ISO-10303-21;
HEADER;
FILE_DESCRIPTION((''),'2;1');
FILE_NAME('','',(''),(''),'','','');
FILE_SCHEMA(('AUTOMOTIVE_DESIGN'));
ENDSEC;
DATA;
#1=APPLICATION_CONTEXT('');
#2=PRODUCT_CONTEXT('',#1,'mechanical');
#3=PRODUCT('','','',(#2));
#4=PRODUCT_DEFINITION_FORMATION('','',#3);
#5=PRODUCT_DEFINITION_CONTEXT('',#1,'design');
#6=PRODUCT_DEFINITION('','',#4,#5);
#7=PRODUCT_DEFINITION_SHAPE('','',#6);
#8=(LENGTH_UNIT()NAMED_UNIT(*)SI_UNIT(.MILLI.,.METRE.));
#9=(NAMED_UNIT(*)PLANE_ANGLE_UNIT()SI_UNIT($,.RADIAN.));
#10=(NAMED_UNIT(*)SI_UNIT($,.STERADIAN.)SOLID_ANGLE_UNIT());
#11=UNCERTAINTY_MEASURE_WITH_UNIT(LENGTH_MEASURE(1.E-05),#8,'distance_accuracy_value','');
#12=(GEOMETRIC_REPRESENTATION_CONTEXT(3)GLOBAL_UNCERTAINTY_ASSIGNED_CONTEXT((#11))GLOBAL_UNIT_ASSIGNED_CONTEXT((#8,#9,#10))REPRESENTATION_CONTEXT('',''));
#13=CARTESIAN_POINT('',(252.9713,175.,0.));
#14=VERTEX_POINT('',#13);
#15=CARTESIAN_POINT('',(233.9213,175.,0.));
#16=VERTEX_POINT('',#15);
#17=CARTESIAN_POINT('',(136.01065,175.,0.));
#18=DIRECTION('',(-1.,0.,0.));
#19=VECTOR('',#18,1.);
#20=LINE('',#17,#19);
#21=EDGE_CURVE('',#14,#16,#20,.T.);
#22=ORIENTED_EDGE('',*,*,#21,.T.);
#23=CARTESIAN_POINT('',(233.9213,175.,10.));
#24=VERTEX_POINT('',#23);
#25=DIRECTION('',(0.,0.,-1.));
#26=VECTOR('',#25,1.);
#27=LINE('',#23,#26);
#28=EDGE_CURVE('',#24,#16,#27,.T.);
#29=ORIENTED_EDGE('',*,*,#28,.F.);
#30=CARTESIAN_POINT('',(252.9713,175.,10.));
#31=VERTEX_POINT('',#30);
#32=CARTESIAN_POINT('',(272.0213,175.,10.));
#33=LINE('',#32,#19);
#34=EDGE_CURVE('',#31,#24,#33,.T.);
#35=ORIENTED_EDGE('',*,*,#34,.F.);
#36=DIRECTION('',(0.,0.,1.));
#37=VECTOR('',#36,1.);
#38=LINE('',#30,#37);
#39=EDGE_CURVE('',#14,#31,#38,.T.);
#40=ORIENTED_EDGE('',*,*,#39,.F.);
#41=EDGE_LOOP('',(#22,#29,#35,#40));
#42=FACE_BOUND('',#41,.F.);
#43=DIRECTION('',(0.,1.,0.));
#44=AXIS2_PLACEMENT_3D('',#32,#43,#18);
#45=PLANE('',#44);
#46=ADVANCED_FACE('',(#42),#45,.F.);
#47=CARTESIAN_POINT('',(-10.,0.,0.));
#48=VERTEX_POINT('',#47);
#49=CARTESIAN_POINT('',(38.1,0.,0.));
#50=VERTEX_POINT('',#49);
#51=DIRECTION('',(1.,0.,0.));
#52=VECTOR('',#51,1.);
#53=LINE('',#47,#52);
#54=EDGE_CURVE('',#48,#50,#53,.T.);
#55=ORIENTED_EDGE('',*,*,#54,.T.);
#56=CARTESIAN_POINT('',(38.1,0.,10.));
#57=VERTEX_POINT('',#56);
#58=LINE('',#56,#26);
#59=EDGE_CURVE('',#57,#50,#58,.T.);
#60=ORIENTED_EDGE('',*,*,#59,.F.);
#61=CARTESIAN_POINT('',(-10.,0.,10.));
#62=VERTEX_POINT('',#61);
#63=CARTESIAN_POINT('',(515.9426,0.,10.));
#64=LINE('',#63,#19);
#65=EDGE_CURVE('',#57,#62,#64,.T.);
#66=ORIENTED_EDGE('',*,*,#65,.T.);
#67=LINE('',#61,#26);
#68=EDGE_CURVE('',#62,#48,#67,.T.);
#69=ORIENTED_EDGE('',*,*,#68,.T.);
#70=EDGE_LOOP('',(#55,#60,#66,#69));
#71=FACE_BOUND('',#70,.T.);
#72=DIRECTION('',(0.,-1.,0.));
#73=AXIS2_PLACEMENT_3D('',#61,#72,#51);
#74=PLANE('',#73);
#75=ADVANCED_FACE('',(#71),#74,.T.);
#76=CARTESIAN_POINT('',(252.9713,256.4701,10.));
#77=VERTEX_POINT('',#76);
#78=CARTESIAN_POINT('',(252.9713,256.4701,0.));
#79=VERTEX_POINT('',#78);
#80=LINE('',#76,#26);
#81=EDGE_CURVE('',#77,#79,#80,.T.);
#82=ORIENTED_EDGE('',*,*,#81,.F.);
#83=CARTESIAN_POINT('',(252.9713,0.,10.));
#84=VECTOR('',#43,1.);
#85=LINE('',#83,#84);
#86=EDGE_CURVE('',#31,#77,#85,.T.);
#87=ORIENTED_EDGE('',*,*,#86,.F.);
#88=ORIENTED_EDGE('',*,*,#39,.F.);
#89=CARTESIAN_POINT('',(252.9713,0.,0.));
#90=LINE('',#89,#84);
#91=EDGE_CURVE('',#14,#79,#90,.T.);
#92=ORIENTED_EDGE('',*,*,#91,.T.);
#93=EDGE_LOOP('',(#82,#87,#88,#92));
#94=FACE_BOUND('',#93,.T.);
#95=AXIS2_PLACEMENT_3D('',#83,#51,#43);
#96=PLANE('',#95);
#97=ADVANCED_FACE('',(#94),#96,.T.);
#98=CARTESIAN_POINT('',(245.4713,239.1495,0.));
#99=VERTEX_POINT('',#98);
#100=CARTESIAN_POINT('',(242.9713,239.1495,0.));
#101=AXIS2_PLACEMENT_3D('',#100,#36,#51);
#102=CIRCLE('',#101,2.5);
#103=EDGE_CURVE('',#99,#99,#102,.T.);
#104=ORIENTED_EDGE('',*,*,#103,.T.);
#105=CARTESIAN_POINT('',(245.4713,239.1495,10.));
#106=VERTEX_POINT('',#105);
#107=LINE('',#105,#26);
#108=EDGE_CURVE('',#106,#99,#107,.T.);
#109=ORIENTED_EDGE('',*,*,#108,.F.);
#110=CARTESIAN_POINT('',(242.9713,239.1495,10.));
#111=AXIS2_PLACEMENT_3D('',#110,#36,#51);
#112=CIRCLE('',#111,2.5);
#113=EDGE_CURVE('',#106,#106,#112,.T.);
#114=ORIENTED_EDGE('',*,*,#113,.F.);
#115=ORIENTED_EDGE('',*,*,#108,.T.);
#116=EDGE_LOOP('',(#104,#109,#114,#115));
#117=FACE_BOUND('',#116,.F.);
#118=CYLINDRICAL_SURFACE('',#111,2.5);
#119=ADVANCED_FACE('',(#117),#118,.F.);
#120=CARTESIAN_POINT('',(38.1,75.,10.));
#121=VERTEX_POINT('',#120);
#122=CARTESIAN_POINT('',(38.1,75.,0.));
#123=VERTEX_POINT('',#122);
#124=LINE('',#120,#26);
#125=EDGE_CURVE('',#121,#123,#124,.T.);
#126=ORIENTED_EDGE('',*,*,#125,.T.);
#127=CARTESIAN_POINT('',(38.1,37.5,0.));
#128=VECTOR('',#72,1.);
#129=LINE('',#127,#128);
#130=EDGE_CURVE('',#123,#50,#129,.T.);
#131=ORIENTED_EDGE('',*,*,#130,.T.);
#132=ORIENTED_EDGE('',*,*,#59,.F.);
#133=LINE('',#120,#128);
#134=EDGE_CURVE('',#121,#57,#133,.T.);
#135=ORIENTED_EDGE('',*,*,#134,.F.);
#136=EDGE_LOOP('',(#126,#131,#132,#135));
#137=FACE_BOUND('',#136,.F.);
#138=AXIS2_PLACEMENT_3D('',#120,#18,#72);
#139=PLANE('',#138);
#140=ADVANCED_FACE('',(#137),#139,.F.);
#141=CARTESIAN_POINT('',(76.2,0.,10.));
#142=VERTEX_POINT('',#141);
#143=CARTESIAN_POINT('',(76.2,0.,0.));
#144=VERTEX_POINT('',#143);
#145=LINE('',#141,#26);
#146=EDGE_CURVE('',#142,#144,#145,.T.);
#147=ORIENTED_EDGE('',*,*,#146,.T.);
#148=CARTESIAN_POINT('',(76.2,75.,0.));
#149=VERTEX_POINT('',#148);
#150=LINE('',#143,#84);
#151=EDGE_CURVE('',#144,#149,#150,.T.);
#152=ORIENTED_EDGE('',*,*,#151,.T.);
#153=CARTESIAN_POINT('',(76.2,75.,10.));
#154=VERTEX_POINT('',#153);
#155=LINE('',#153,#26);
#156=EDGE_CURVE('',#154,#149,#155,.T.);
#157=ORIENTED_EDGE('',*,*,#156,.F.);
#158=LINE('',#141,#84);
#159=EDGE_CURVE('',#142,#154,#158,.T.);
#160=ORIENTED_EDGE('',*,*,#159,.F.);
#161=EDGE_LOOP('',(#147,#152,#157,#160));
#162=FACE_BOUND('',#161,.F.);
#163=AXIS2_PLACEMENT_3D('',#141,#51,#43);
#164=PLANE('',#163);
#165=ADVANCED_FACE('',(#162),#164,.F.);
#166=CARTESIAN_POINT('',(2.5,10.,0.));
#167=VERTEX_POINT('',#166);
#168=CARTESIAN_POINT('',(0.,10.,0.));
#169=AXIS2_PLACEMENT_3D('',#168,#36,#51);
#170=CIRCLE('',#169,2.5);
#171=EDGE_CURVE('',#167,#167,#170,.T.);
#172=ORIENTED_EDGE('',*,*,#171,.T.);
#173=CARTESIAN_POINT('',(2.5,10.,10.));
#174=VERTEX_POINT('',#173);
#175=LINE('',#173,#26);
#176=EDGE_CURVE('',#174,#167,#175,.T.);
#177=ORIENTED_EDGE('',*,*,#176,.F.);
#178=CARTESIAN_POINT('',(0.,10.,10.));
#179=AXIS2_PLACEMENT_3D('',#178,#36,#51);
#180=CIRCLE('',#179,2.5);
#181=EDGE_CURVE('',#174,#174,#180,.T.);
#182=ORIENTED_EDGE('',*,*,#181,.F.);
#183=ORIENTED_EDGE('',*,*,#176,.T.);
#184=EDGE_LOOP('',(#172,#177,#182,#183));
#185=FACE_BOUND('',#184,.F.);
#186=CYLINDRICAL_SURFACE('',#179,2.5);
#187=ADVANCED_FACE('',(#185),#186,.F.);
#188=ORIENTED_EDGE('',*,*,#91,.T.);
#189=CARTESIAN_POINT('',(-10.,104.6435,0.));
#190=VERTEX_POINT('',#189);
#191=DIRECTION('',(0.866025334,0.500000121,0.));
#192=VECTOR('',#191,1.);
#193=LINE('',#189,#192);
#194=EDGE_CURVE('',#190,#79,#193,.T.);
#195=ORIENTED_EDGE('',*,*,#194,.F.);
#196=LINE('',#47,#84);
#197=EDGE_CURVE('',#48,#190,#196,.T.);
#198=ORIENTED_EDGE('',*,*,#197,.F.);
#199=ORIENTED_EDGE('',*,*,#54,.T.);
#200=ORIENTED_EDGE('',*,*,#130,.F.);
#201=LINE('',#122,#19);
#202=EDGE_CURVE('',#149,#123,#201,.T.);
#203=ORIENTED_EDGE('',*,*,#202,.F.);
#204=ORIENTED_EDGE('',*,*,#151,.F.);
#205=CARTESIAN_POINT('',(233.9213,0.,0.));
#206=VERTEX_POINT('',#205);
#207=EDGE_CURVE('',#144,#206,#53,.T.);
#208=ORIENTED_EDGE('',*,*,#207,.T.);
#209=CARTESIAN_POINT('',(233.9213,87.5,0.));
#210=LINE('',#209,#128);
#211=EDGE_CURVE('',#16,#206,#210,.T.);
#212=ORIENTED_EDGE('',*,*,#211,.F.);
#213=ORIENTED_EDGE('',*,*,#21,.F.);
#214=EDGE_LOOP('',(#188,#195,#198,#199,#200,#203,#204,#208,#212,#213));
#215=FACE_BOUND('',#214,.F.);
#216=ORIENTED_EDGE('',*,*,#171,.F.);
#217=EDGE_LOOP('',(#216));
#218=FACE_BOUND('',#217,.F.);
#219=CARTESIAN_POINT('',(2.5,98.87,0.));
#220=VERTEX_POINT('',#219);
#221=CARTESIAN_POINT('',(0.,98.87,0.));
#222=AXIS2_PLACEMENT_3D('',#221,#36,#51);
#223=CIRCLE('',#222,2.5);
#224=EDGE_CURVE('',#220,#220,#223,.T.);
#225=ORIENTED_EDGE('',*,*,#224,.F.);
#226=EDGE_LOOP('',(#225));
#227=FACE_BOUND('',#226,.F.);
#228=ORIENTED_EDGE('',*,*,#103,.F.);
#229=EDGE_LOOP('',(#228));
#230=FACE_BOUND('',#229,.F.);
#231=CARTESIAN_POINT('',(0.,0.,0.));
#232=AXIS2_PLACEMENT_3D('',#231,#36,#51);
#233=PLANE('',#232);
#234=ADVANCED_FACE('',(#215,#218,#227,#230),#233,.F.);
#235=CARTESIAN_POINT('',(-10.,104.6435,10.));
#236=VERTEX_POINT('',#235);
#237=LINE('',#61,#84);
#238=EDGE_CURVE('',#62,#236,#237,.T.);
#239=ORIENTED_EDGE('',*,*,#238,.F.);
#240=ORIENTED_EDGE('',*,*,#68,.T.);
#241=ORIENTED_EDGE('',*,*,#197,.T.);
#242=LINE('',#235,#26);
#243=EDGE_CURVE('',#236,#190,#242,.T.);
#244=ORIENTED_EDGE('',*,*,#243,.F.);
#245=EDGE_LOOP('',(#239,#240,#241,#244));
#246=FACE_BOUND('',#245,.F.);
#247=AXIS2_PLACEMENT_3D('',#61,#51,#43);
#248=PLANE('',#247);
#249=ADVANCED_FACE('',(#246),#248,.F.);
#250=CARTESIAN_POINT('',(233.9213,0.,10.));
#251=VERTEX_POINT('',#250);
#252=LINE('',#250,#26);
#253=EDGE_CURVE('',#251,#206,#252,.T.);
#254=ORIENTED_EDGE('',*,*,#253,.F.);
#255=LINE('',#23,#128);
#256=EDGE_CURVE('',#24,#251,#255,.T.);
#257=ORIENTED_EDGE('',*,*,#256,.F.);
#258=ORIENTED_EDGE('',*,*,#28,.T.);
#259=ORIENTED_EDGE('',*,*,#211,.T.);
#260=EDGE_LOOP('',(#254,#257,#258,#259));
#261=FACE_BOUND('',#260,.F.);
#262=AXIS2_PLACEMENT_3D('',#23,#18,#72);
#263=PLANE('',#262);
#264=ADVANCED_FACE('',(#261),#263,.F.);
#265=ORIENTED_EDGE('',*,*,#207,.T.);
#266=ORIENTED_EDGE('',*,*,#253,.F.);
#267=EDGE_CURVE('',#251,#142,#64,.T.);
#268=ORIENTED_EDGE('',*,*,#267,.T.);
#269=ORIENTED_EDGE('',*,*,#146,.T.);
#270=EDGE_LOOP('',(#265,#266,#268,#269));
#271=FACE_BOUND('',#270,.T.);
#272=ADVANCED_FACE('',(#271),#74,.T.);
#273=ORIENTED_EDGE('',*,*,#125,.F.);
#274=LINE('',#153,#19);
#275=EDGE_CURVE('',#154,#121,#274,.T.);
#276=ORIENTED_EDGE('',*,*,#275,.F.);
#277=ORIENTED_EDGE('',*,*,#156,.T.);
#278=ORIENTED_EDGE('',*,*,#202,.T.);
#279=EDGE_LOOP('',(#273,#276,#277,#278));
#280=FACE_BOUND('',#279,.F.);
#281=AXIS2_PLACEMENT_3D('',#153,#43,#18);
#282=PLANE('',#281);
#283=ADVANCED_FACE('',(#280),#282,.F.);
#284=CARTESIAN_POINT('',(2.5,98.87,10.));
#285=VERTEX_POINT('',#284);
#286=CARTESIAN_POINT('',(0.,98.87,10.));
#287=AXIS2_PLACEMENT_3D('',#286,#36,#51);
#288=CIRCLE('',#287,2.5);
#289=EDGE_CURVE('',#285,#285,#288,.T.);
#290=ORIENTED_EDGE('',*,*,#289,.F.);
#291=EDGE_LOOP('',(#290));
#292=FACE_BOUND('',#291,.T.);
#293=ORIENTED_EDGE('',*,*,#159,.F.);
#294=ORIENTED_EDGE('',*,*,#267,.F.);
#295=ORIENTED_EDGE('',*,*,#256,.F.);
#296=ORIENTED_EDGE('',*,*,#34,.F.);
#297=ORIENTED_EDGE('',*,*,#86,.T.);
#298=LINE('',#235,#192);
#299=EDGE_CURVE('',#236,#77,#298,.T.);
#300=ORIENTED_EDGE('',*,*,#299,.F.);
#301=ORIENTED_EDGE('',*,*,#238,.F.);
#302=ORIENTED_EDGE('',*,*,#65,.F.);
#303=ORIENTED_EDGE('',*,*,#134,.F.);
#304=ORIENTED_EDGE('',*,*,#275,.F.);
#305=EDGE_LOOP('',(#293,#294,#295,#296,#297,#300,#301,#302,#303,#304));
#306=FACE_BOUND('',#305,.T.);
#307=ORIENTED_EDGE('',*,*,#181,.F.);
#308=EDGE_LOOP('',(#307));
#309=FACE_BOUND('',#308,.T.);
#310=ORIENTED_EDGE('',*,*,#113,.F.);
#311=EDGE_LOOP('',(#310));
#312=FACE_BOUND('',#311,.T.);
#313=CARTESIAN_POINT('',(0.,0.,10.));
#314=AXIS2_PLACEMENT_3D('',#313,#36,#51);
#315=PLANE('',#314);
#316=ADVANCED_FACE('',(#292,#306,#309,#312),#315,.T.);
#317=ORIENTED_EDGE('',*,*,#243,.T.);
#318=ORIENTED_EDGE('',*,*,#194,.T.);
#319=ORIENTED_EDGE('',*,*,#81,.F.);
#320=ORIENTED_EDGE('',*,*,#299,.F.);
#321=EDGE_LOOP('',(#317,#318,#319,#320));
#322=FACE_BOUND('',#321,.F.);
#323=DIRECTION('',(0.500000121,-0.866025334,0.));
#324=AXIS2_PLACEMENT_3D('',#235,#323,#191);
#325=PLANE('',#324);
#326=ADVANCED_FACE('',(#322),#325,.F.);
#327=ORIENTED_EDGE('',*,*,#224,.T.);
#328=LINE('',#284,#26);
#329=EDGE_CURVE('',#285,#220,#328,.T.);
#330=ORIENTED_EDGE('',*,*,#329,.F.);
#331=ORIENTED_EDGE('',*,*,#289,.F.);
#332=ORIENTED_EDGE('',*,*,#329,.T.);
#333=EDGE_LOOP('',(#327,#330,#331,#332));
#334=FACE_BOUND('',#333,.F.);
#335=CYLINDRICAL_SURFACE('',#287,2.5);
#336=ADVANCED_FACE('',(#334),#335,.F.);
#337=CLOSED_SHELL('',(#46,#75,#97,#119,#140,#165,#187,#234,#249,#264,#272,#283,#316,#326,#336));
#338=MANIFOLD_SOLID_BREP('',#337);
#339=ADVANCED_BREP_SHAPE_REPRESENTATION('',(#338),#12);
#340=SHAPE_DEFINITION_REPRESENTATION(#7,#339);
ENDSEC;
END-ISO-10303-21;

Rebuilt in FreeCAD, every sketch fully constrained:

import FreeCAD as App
import Part
import Sketcher
from FreeCAD import Vector
Q = App.Units.Quantity

doc = App.newDocument("Part")
body = doc.addObject("PartDesign::Body", "Body")

sketch1 = body.newObject("Sketcher::SketchObject", "Sketch")
sketch1.AttachmentSupport = (doc.getObject("XY_Plane"), [""])
sketch1.MapMode = "FlatFace"
sketch1.addGeometry([
    Part.LineSegment(Vector(0, 99, 0), Vector(0, 0, 0)),
    Part.LineSegment(Vector(0, 0, 0), Vector(506, 0, 0)),
    Part.LineSegment(Vector(506, 0, 0), Vector(506, 99, 0)),
    Part.LineSegment(Vector(506, 99, 0), Vector(253, 245, 0)),
    Part.LineSegment(Vector(253, 245, 0), Vector(0, 99, 0)),
], False)
sketch1.addConstraint([
    Sketcher.Constraint("Coincident", 0, 2, 1, 1),
    Sketcher.Constraint("Coincident", 1, 2, 2, 1),
    Sketcher.Constraint("Coincident", 2, 2, 3, 1),
    Sketcher.Constraint("Coincident", 3, 2, 4, 1),
    Sketcher.Constraint("Coincident", 4, 2, 0, 1),
    Sketcher.Constraint("Vertical", 0),
    Sketcher.Constraint("Horizontal", 1),
    Sketcher.Constraint("Vertical", 2),
    Sketcher.Constraint("Coincident", 0, 2, -1, 1),
    Sketcher.Constraint("Horizontal", 2, 2, 4, 2),
    Sketcher.Constraint("Equal", 3, 4),
    Sketcher.Constraint("DistanceY", 0, 2, 0, 1, Q("98.87 mm")),
    Sketcher.Constraint("Angle", 3, Q("150 deg")),
    Sketcher.Constraint("DistanceX", 1, 1, 1, 2, Q("505.9426 mm")),
])
pad1 = body.newObject("PartDesign::Pad", "Pad")
pad1.Profile = sketch1
pad1.Length = 10

sketch2 = body.newObject("Sketcher::SketchObject", "Sketch001")
sketch2.AttachmentSupport = (doc.getObject("XY_Plane"), [""])
sketch2.MapMode = "FlatFace"
sketch2.AttachmentOffset = App.Placement(Vector(0, 0, 10), App.Rotation())
sketch2.addGeometry([
    Part.LineSegment(Vector(0, 0, 0), Vector(0, 99, 0)),
    Part.LineSegment(Vector(0, 99, 0), Vector(253, 245, 0)),
    Part.LineSegment(Vector(253, 245, 0), Vector(506, 99, 0)),
    Part.LineSegment(Vector(506, 99, 0), Vector(506, 0, 0)),
    Part.LineSegment(Vector(506, 0, 0), Vector(516, 0, 0)),
    Part.LineSegment(Vector(516, 0, 0), Vector(516, 105, 0)),
    Part.LineSegment(Vector(516, 105, 0), Vector(253, 256, 0)),
    Part.LineSegment(Vector(253, 256, 0), Vector(-10, 105, 0)),
    Part.LineSegment(Vector(-10, 105, 0), Vector(-10, 0, 0)),
    Part.LineSegment(Vector(-10, 0, 0), Vector(0, 0, 0)),
], False)
sketch2.addConstraint([
    Sketcher.Constraint("Coincident", 0, 2, 1, 1),
    Sketcher.Constraint("Coincident", 1, 2, 2, 1),
    Sketcher.Constraint("Coincident", 2, 2, 3, 1),
    Sketcher.Constraint("Coincident", 3, 2, 4, 1),
    Sketcher.Constraint("Coincident", 4, 2, 5, 1),
    Sketcher.Constraint("Coincident", 5, 2, 6, 1),
    Sketcher.Constraint("Coincident", 6, 2, 7, 1),
    Sketcher.Constraint("Coincident", 7, 2, 8, 1),
    Sketcher.Constraint("Coincident", 8, 2, 9, 1),
    Sketcher.Constraint("Coincident", 9, 2, 0, 1),
    Sketcher.Constraint("Vertical", 0),
    Sketcher.Constraint("Vertical", 3),
    Sketcher.Constraint("Horizontal", 4),
    Sketcher.Constraint("Vertical", 5),
    Sketcher.Constraint("Vertical", 8),
    Sketcher.Constraint("Horizontal", 9),
    Sketcher.Constraint("Coincident", 9, 2, -1, 1),
    Sketcher.Constraint("PointOnObject", 3, 2, -1),
    Sketcher.Constraint("Parallel", 2, 6),
    Sketcher.Constraint("Parallel", 1, 7),
    Sketcher.Constraint("Horizontal", 0, 2, 2, 2),
    Sketcher.Constraint("Horizontal", 5, 2, 7, 2),
    Sketcher.Constraint("Vertical", 1, 2, 6, 2),
    Sketcher.Constraint("Equal", 4, 9),
    Sketcher.Constraint("DistanceX", 4, 1, 4, 2, Q("10 mm")),
    Sketcher.Constraint("Angle", 1, Q("30 deg")),
    Sketcher.Constraint("DistanceY", 0, 1, 0, 2, Q("98.87 mm")),
    Sketcher.Constraint("DistanceY", 0, 2, 6, 2, Q("157.6 mm")),
    Sketcher.Constraint("Distance", 1, Q("292.106 mm")),
])
pad2 = body.newObject("PartDesign::Pad", "Pad001")
pad2.Profile = sketch2
pad2.Length = 10
pad2.Reversed = True

sketch3 = body.newObject("Sketcher::SketchObject", "Sketch002")
sketch3.AttachmentSupport = (doc.getObject("XY_Plane"), [""])
sketch3.MapMode = "FlatFace"
sketch3.AttachmentOffset = App.Placement(Vector(0, 0, 10), App.Rotation())
sketch3.addGeometry([
    Part.LineSegment(Vector(516, 256, 0), Vector(253, 256, 0)),
    Part.LineSegment(Vector(253, 256, 0), Vector(253, 0, 0)),
    Part.LineSegment(Vector(253, 0, 0), Vector(516, 0, 0)),
    Part.LineSegment(Vector(516, 0, 0), Vector(516, 256, 0)),
], False)
sketch3.addConstraint([
    Sketcher.Constraint("Coincident", 0, 2, 1, 1),
    Sketcher.Constraint("Coincident", 1, 2, 2, 1),
    Sketcher.Constraint("Coincident", 2, 2, 3, 1),
    Sketcher.Constraint("Coincident", 3, 2, 0, 1),
    Sketcher.Constraint("Horizontal", 0),
    Sketcher.Constraint("Vertical", 1),
    Sketcher.Constraint("Horizontal", 2),
    Sketcher.Constraint("Vertical", 3),
    Sketcher.Constraint("PointOnObject", 1, 2, -1),
    Sketcher.Constraint("DistanceY", 1, 2, 1, 1, Q("256.47 mm")),
    Sketcher.Constraint("DistanceX", 0, 2, 0, 1, Q("262.9713 mm")),
    Sketcher.Constraint("DistanceX", -1, 1, 0, 2, Q("252.9713 mm")),
])
pocket1 = body.newObject("PartDesign::Pocket", "Pocket")
pocket1.Profile = sketch3
pocket1.Type = "ThroughAll"

sketch4 = body.newObject("Sketcher::SketchObject", "Sketch003")
sketch4.AttachmentSupport = (doc.getObject("XY_Plane"), [""])
sketch4.MapMode = "FlatFace"
sketch4.AttachmentOffset = App.Placement(Vector(0, 0, 10), App.Rotation())
sketch4.addGeometry([
    Part.Circle(Vector(0, 10, 0), Vector(0, 0, 1), 2.5),
    Part.Circle(Vector(0, 98.9, 0), Vector(0, 0, 1), 2.5),
    Part.Circle(Vector(243, 239.1, 0), Vector(0, 0, 1), 2.5),
    Part.Circle(Vector(243, 10, 0), Vector(0, 0, 1), 2.5),
], False)
sketch4.addConstraint([
    Sketcher.Constraint("Equal", 0, 1),
    Sketcher.Constraint("Equal", 1, 2),
    Sketcher.Constraint("Equal", 2, 3),
    Sketcher.Constraint("PointOnObject", 0, 3, -2),
    Sketcher.Constraint("PointOnObject", 1, 3, -2),
    Sketcher.Constraint("Horizontal", 0, 3, 3, 3),
    Sketcher.Constraint("Vertical", 2, 3, 3, 3),
    Sketcher.Constraint("Diameter", 0, Q("5 mm")),
    Sketcher.Constraint("DistanceY", -1, 1, 0, 3, Q("10 mm")),
    Sketcher.Constraint("DistanceY", -1, 1, 1, 3, Q("98.87 mm")),
    Sketcher.Constraint("DistanceX", -1, 1, 2, 3, Q("242.9713 mm")),
    Sketcher.Constraint("DistanceY", -1, 1, 2, 3, Q("239.1495 mm")),
])
pocket2 = body.newObject("PartDesign::Pocket", "Pocket001")
pocket2.Profile = sketch4
pocket2.Type = "ThroughAll"

sketch5 = body.newObject("Sketcher::SketchObject", "Sketch004")
sketch5.AttachmentSupport = (doc.getObject("XY_Plane"), [""])
sketch5.MapMode = "FlatFace"
sketch5.AttachmentOffset = App.Placement(Vector(0, 0, 10), App.Rotation())
sketch5.addGeometry([
    Part.LineSegment(Vector(272, 0, 0), Vector(272, 175, 0)),
    Part.LineSegment(Vector(272, 175, 0), Vector(234, 175, 0)),
    Part.LineSegment(Vector(234, 175, 0), Vector(234, 0, 0)),
    Part.LineSegment(Vector(234, 0, 0), Vector(272, 0, 0)),
    Part.LineSegment(Vector(38, 0, 0), Vector(76, 0, 0)),
    Part.LineSegment(Vector(76, 0, 0), Vector(76, 75, 0)),
    Part.LineSegment(Vector(76, 75, 0), Vector(38, 75, 0)),
    Part.LineSegment(Vector(38, 75, 0), Vector(38, 0, 0)),
], False)
sketch5.addConstraint([
    Sketcher.Constraint("Coincident", 0, 2, 1, 1),
    Sketcher.Constraint("Coincident", 1, 2, 2, 1),
    Sketcher.Constraint("Coincident", 2, 2, 3, 1),
    Sketcher.Constraint("Coincident", 3, 2, 0, 1),
    Sketcher.Constraint("Coincident", 4, 2, 5, 1),
    Sketcher.Constraint("Coincident", 5, 2, 6, 1),
    Sketcher.Constraint("Coincident", 6, 2, 7, 1),
    Sketcher.Constraint("Coincident", 7, 2, 4, 1),
    Sketcher.Constraint("Vertical", 0),
    Sketcher.Constraint("Horizontal", 1),
    Sketcher.Constraint("Vertical", 2),
    Sketcher.Constraint("Horizontal", 3),
    Sketcher.Constraint("Horizontal", 4),
    Sketcher.Constraint("Vertical", 5),
    Sketcher.Constraint("Horizontal", 6),
    Sketcher.Constraint("Vertical", 7),
    Sketcher.Constraint("PointOnObject", 2, 2, -1),
    Sketcher.Constraint("PointOnObject", 4, 2, -1),
    Sketcher.Constraint("Equal", 3, 4),
    Sketcher.Constraint("DistanceY", 0, 1, 0, 2, Q("175 mm")),
    Sketcher.Constraint("DistanceY", 5, 1, 5, 2, Q("75 mm")),
    Sketcher.Constraint("DistanceX", 1, 2, 1, 1, Q("38.1 mm")),
    Sketcher.Constraint("DistanceX", -1, 1, 6, 2, Q("38.1 mm")),
    Sketcher.Constraint("DistanceX", -1, 1, 0, 2, Q("272.0213 mm")),
])
pocket3 = body.newObject("PartDesign::Pocket", "Pocket002")
pocket3.Profile = sketch5
pocket3.Type = "ThroughAll"

doc.recompute()
